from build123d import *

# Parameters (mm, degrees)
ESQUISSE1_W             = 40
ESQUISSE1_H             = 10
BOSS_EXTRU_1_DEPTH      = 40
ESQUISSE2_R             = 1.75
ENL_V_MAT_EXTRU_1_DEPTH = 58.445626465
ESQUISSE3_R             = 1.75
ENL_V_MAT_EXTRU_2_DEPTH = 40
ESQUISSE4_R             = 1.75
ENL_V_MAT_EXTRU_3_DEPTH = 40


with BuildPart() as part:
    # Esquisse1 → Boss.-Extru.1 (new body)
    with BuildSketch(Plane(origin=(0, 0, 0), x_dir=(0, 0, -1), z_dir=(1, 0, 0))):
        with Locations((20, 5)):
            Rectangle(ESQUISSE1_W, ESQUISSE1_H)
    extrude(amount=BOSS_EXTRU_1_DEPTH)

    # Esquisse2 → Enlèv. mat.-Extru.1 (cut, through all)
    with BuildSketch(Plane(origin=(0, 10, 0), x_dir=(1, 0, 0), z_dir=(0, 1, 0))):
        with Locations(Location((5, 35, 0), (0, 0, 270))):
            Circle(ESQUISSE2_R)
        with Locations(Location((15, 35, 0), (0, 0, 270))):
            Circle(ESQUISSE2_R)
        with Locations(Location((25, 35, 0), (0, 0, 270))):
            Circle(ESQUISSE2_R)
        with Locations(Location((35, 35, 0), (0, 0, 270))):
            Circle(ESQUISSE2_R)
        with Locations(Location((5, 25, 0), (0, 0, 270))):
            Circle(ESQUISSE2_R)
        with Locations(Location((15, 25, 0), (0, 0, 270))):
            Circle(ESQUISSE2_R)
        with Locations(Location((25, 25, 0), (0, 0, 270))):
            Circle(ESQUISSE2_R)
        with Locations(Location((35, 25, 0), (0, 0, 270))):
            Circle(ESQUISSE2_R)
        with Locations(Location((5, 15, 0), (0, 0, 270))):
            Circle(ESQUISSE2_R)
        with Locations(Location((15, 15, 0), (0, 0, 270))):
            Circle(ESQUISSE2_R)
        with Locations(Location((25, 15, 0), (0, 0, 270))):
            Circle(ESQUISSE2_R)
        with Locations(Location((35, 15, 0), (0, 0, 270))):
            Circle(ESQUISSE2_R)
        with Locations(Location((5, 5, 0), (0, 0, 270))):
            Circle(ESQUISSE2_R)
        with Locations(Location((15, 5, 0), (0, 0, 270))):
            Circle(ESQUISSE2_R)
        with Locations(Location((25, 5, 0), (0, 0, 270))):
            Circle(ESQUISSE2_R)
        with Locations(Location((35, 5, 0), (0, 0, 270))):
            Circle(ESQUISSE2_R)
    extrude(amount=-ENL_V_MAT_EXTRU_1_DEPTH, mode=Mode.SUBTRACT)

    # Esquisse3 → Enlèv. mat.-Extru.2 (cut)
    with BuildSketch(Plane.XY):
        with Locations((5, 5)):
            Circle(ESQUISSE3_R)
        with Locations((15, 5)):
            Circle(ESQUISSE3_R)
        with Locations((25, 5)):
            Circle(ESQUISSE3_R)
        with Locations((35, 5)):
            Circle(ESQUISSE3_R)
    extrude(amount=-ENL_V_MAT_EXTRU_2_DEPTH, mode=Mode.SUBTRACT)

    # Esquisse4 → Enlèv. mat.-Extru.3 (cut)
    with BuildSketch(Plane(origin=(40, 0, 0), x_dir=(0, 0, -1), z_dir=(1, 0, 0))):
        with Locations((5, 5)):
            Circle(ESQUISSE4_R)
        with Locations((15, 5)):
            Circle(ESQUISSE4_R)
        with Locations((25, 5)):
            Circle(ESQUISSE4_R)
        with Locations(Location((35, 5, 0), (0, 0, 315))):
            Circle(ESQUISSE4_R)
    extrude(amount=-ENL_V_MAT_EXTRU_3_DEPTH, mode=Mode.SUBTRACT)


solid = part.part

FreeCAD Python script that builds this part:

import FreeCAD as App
import Part
import Sketcher
from FreeCAD import Vector

doc = App.newDocument("Part")
body = doc.addObject("PartDesign::Body", "Body")

# Sketch on YZ plane
sketch1 = body.newObject("Sketcher::SketchObject", "Sketch")
sketch1.AttachmentSupport = (doc.getObject("YZ_Plane"), [""])
sketch1.MapMode = "FlatFace"
sketch1.addGeometry([
    Part.LineSegment(Vector(10, 0, 0), Vector(0, 0, 0)),
    Part.LineSegment(Vector(0, 0, 0), Vector(0, -40, 0)),
    Part.LineSegment(Vector(0, -40, 0), Vector(10, -40, 0)),
    Part.LineSegment(Vector(10, -40, 0), Vector(10, 0, 0)),
], False)
sketch1.addConstraint([
    Sketcher.Constraint("Coincident", 0, 2, 1, 1),
    Sketcher.Constraint("Coincident", 1, 2, 2, 1),
    Sketcher.Constraint("Coincident", 2, 2, 3, 1),
    Sketcher.Constraint("Coincident", 3, 2, 0, 1),
    Sketcher.Constraint("Horizontal", 0),
    Sketcher.Constraint("Vertical", 1),
    Sketcher.Constraint("Horizontal", 2),
    Sketcher.Constraint("Vertical", 3),
    Sketcher.Constraint("Coincident", 0, 2, -1, 1),
    Sketcher.Constraint("DistanceX", 0, 2, 0, 1, 10.0),
    Sketcher.Constraint("DistanceY", 1, 2, 1, 1, 40.0),
])
pad1 = body.newObject("PartDesign::Pad", "Pad")
pad1.Profile = sketch1
pad1.Length = 40

# Sketch on XZ plane
sketch2 = body.newObject("Sketcher::SketchObject", "Sketch001")
sketch2.AttachmentSupport = (doc.getObject("XZ_Plane"), [""])
sketch2.MapMode = "FlatFace"
sketch2.AttachmentOffset = App.Placement(Vector(0, 0, -10), App.Rotation())
sketch2.addGeometry([
    Part.Circle(Vector(5, -35, 0), Vector(0, 0, 1), 1.8),  # 0
    Part.Circle(Vector(15, -35, 0), Vector(0, 0, 1), 1.8),  # 1
    Part.Circle(Vector(25, -35, 0), Vector(0, 0, 1), 1.8),  # 2
    Part.Circle(Vector(35, -35, 0), Vector(0, 0, 1), 1.8),  # 3
    Part.Circle(Vector(5, -25, 0), Vector(0, 0, 1), 1.8),  # 4
    Part.Circle(Vector(15, -25, 0), Vector(0, 0, 1), 1.8),  # 5
    Part.Circle(Vector(25, -25, 0), Vector(0, 0, 1), 1.8),  # 6
    Part.Circle(Vector(35, -25, 0), Vector(0, 0, 1), 1.8),  # 7
    Part.Circle(Vector(5, -15, 0), Vector(0, 0, 1), 1.8),  # 8
    Part.Circle(Vector(15, -15, 0), Vector(0, 0, 1), 1.8),  # 9
    Part.Circle(Vector(25, -15, 0), Vector(0, 0, 1), 1.8),  # 10
    Part.Circle(Vector(35, -15, 0), Vector(0, 0, 1), 1.8),  # 11
    Part.Circle(Vector(5, -5, 0), Vector(0, 0, 1), 1.8),  # 12
    Part.Circle(Vector(15, -5, 0), Vector(0, 0, 1), 1.8),  # 13
    Part.Circle(Vector(25, -5, 0), Vector(0, 0, 1), 1.8),  # 14
    Part.Circle(Vector(35, -5, 0), Vector(0, 0, 1), 1.8),  # 15
], False)
sketch2.addConstraint([
    Sketcher.Constraint("Equal", 0, 1),
    Sketcher.Constraint("Equal", 1, 2),
    Sketcher.Constraint("Equal", 2, 3),
    Sketcher.Constraint("Equal", 3, 4),
    Sketcher.Constraint("Equal", 4, 5),
    Sketcher.Constraint("Equal", 5, 6),
    Sketcher.Constraint("Equal", 6, 7),
    Sketcher.Constraint("Equal", 7, 8),
    Sketcher.Constraint("Equal", 8, 9),
    Sketcher.Constraint("Equal", 9, 10),
    Sketcher.Constraint("Equal", 10, 11),
    Sketcher.Constraint("Equal", 11, 12),
    Sketcher.Constraint("Equal", 12, 13),
    Sketcher.Constraint("Equal", 13, 14),
    Sketcher.Constraint("Equal", 14, 15),
    Sketcher.Constraint("Horizontal", 0, 3, 1, 3),
    Sketcher.Constraint("Horizontal", 1, 3, 2, 3),
    Sketcher.Constraint("Horizontal", 2, 3, 3, 3),
    Sketcher.Constraint("Horizontal", 4, 3, 5, 3),
    Sketcher.Constraint("Horizontal", 5, 3, 6, 3),
    Sketcher.Constraint("Horizontal", 6, 3, 7, 3),
    Sketcher.Constraint("Horizontal", 8, 3, 9, 3),
    Sketcher.Constraint("Horizontal", 9, 3, 10, 3),
    Sketcher.Constraint("Horizontal", 10, 3, 11, 3),
    Sketcher.Constraint("Horizontal", 12, 3, 13, 3),
    Sketcher.Constraint("Horizontal", 13, 3, 14, 3),
    Sketcher.Constraint("Horizontal", 14, 3, 15, 3),
    Sketcher.Constraint("Vertical", 0, 3, 4, 3),
    Sketcher.Constraint("Vertical", 1, 3, 5, 3),
    Sketcher.Constraint("Vertical", 2, 3, 6, 3),
    Sketcher.Constraint("Vertical", 3, 3, 7, 3),
    Sketcher.Constraint("Vertical", 4, 3, 8, 3),
    Sketcher.Constraint("Vertical", 5, 3, 9, 3),
    Sketcher.Constraint("Vertical", 6, 3, 10, 3),
    Sketcher.Constraint("Vertical", 7, 3, 11, 3),
    Sketcher.Constraint("Vertical", 8, 3, 12, 3),
    Sketcher.Constraint("Vertical", 9, 3, 13, 3),
    Sketcher.Constraint("Vertical", 10, 3, 14, 3),
    Sketcher.Constraint("Vertical", 11, 3, 15, 3),
    Sketcher.Constraint("Diameter", 0, 3.5),
    Sketcher.Constraint("DistanceX", -1, 1, 0, 3, 5.0),
    Sketcher.Constraint("DistanceY", 0, 3, -1, 1, 35.0),
    Sketcher.Constraint("DistanceX", -1, 1, 1, 3, 15.0),
    Sketcher.Constraint("DistanceX", -1, 1, 2, 3, 25.0),
    Sketcher.Constraint("DistanceX", -1, 1, 3, 3, 35.0),
    Sketcher.Constraint("DistanceY", 4, 3, -1, 1, 25.0),
    Sketcher.Constraint("DistanceY", 8, 3, -1, 1, 15.0),
    Sketcher.Constraint("DistanceY", 12, 3, -1, 1, 5.0),
])
pocket1 = body.newObject("PartDesign::Pocket", "Pocket")
pocket1.Profile = sketch2
pocket1.Type = "ThroughAll"
pocket1.Reversed = True

# Sketch on XY plane
sketch3 = body.newObject("Sketcher::SketchObject", "Sketch002")
sketch3.AttachmentSupport = (doc.getObject("XY_Plane"), [""])
sketch3.MapMode = "FlatFace"
sketch3.addGeometry([
    Part.Circle(Vector(5, 5, 0), Vector(0, 0, 1), 1.8),
    Part.Circle(Vector(15, 5, 0), Vector(0, 0, 1), 1.8),
    Part.Circle(Vector(25, 5, 0), Vector(0, 0, 1), 1.8),
    Part.Circle(Vector(35, 5, 0), Vector(0, 0, 1), 1.8),
], False)
sketch3.addConstraint([
    Sketcher.Constraint("Equal", 0, 1),
    Sketcher.Constraint("Equal", 1, 2),
    Sketcher.Constraint("Equal", 2, 3),
    Sketcher.Constraint("Horizontal", 0, 3, 1, 3),
    Sketcher.Constraint("Horizontal", 1, 3, 2, 3),
    Sketcher.Constraint("Horizontal", 2, 3, 3, 3),
    Sketcher.Constraint("Diameter", 0, 3.5),
    Sketcher.Constraint("DistanceX", -1, 1, 0, 3, 5.0),
    Sketcher.Constraint("DistanceY", -1, 1, 0, 3, 5.0),
    Sketcher.Constraint("DistanceX", -1, 1, 1, 3, 15.0),
    Sketcher.Constraint("DistanceX", -1, 1, 2, 3, 25.0),
    Sketcher.Constraint("DistanceX", -1, 1, 3, 3, 35.0),
])
pocket2 = body.newObject("PartDesign::Pocket", "Pocket001")
pocket2.Profile = sketch3
pocket2.Length = 40

# Sketch on YZ plane
sketch4 = body.newObject("Sketcher::SketchObject", "Sketch003")
sketch4.AttachmentSupport = (doc.getObject("YZ_Plane"), [""])
sketch4.MapMode = "FlatFace"
sketch4.AttachmentOffset = App.Placement(Vector(0, 0, 40), App.Rotation())
sketch4.addGeometry([
    Part.Circle(Vector(5, -5, 0), Vector(0, 0, 1), 1.8),
    Part.Circle(Vector(5, -15, 0), Vector(0, 0, 1), 1.8),
    Part.Circle(Vector(5, -25, 0), Vector(0, 0, 1), 1.8),
    Part.Circle(Vector(5, -35, 0), Vector(0, 0, 1), 1.8),
], False)
sketch4.addConstraint([
    Sketcher.Constraint("Equal", 0, 1),
    Sketcher.Constraint("Equal", 1, 2),
    Sketcher.Constraint("Equal", 2, 3),
    Sketcher.Constraint("Vertical", 0, 3, 1, 3),
    Sketcher.Constraint("Vertical", 1, 3, 2, 3),
    Sketcher.Constraint("Vertical", 2, 3, 3, 3),
    Sketcher.Constraint("Diameter", 0, 3.5),
    Sketcher.Constraint("DistanceX", -1, 1, 0, 3, 5.0),
    Sketcher.Constraint("DistanceY", 0, 3, -1, 1, 5.0),
    Sketcher.Constraint("DistanceY", 1, 3, -1, 1, 15.0),
    Sketcher.Constraint("DistanceY", 2, 3, -1, 1, 25.0),
    Sketcher.Constraint("DistanceY", 3, 3, -1, 1, 35.0),
])
pocket3 = body.newObject("PartDesign::Pocket", "Pocket002")
pocket3.Profile = sketch4
pocket3.Length = 40

doc.recompute()
